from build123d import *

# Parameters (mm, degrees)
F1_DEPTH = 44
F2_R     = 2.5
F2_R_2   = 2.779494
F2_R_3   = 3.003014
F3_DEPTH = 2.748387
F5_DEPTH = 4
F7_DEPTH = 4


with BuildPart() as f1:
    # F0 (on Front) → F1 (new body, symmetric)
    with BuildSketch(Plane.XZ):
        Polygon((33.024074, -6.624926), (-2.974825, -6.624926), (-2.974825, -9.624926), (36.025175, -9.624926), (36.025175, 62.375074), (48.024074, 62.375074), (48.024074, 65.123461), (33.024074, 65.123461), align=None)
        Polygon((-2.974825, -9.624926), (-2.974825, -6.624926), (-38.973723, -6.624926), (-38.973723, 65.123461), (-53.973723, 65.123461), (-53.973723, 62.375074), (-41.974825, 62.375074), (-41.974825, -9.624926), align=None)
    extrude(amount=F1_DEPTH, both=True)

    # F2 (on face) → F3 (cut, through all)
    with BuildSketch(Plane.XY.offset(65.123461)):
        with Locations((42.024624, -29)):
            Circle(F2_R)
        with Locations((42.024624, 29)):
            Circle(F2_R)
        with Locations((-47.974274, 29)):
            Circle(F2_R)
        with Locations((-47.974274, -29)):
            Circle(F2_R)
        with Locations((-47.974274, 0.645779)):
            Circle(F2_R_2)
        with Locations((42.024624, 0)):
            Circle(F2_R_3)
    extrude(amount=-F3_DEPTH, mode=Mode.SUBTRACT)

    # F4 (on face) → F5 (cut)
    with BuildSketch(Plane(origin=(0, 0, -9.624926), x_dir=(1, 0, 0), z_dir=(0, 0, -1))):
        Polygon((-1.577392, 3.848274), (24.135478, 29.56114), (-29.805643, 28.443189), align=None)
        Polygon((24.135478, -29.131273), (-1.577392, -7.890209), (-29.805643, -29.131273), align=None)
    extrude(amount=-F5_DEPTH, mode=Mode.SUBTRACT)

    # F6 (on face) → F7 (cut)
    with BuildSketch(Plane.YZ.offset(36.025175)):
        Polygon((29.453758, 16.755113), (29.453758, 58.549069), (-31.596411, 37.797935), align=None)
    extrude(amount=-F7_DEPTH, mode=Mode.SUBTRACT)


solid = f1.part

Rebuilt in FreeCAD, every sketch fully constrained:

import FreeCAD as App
import Part
import Sketcher

V = App.Vector
Q = App.Units.Quantity


def add_polygon(sketch, points):
    """Adds a closed chain of lines whose ends are joined by coincident constraints."""
    first, n = sketch.GeometryCount, len(points)
    for a, b in zip(points, points[1:] + points[:1]):
        sketch.addGeometry(Part.LineSegment(App.Vector(*a, 0), App.Vector(*b, 0)), False)
    for i in range(n):
        sketch.addConstraint(Sketcher.Constraint("Coincident", first + i, 2, first + (i + 1) % n, 1))

doc = App.newDocument("Part")
body = doc.addObject("PartDesign::Body", "Body")

# Sketch on XZ plane
sketch1 = doc.addObject("Sketcher::SketchObject", "Sketch")
body.addObject(sketch1)
sketch1.AttachmentSupport = (doc.XZ_Plane, [""])
sketch1.MapMode = "FlatFace"
add_polygon(sketch1, [(33.024074, -6.624926), (-38.973723, -6.624926), (-38.973723, 65.123461), (-53.973723, 65.123461), (-53.973723, 62.375074), (-41.974825, 62.375074), (-41.974825, -9.624926), (36.025175, -9.624926), (36.025175, 62.375074), (48.024074, 62.375074), (48.024074, 65.123461), (33.024074, 65.123461)])  # lines 0-11
sketch1.addConstraint([
    Sketcher.Constraint("Horizontal", 0),
    Sketcher.Constraint("Vertical", 1),
    Sketcher.Constraint("Horizontal", 2),
    Sketcher.Constraint("Vertical", 3),
    Sketcher.Constraint("Horizontal", 4),
    Sketcher.Constraint("Vertical", 5),
    Sketcher.Constraint("Horizontal", 6),
    Sketcher.Constraint("Vertical", 7),
    Sketcher.Constraint("Horizontal", 8),
    Sketcher.Constraint("Vertical", 9),
    Sketcher.Constraint("Horizontal", 10),
    Sketcher.Constraint("Vertical", 11),
    Sketcher.Constraint("Horizontal", 4, 2, 7, 2),
    Sketcher.Constraint("Horizontal", 2, 2, 9, 2),
    Sketcher.Constraint("Equal", 4, 8),
    Sketcher.Constraint("Equal", 2, 10),
    Sketcher.Constraint("DistanceX", 2, 2, 2, 1, Q("15 mm")),
    Sketcher.Constraint("DistanceX", 6, 1, 6, 2, Q("78 mm")),
    Sketcher.Constraint("DistanceY", 5, 2, 5, 1, Q("72 mm")),
    Sketcher.Constraint("DistanceY", 0, 2, 3, 2, Q("69 mm")),
    Sketcher.Constraint("DistanceX", 8, 1, 8, 2, Q("11.998899 mm")),
    Sketcher.Constraint("DistanceY", 1, 1, 1, 2, Q("71.748387 mm")),
    Sketcher.Constraint("DistanceY", -1, 1, 1, 2, Q("65.123461 mm")),
    Sketcher.Constraint("DistanceX", 0, 2, -1, 1, Q("38.973723 mm")),
])
pad1 = doc.addObject("PartDesign::Pad", "Pad")
body.addObject(pad1)
pad1.Profile = sketch1
pad1.Length = 88
pad1.Midplane = True

# Sketch on XY plane
sketch2 = doc.addObject("Sketcher::SketchObject", "Sketch001")
body.addObject(sketch2)
sketch2.AttachmentSupport = (doc.XY_Plane, [""])
sketch2.MapMode = "FlatFace"
sketch2.AttachmentOffset = App.Placement(V(0, 0, 65.123461), App.Rotation())
sketch2.addGeometry([
    Part.Circle(V(42.024624, -29, 0), V(0, 0, 1), 2.5),  # 0
    Part.Circle(V(42.024624, 29, 0), V(0, 0, 1), 2.5),  # 1
    Part.Circle(V(-47.974274, 29, 0), V(0, 0, 1), 2.5),  # 2
    Part.Circle(V(-47.974274, -29, 0), V(0, 0, 1), 2.5),  # 3
    Part.Circle(V(-47.974274, 0.645779, 0), V(0, 0, 1), 2.779494),  # 4
    Part.Circle(V(42.024624, 0, 0), V(0, 0, 1), 3.003014),  # 5
], False)
sketch2.addConstraint([
    Sketcher.Constraint("Equal", 0, 1),
    Sketcher.Constraint("Equal", 1, 2),
    Sketcher.Constraint("Equal", 2, 3),
    Sketcher.Constraint("Symmetric", 0, 3, 1, 3, -1),
    Sketcher.Constraint("Symmetric", 2, 3, 3, 3, -1),
    Sketcher.Constraint("PointOnObject", 5, 3, -1),
    Sketcher.Constraint("Horizontal", 1, 3, 2, 3),
    Sketcher.Constraint("Vertical", 3, 3, 4, 3),
    Sketcher.Constraint("Vertical", 1, 3, 5, 3),
    Sketcher.Constraint("Diameter", 0, Q("5 mm")),
    Sketcher.Constraint("DistanceY", 0, 3, -1, 1, Q("29 mm")),
    Sketcher.Constraint("Diameter", 4, Q("5.558988 mm")),
    Sketcher.Constraint("Diameter", 5, Q("6.006028 mm")),
    Sketcher.Constraint("DistanceY", -1, 1, 4, 3, Q("0.645779 mm")),
    Sketcher.Constraint("DistanceX", -1, 1, 0, 3, Q("42.024624 mm")),
    Sketcher.Constraint("DistanceX", 2, 3, -1, 1, Q("47.974274 mm")),
])
pocket1 = doc.addObject("PartDesign::Pocket", "Pocket")
body.addObject(pocket1)
pocket1.Profile = sketch2
pocket1.Type = "ThroughAll"

# Sketch on XY plane
sketch3 = doc.addObject("Sketcher::SketchObject", "Sketch002")
body.addObject(sketch3)
sketch3.AttachmentSupport = (doc.XY_Plane, [""])
sketch3.MapMode = "FlatFace"
sketch3.AttachmentOffset = App.Placement(V(0, 0, -9.624926), App.Rotation())
add_polygon(sketch3, [(-1.577392, -3.848274), (24.135478, -29.56114), (-29.805643, -28.443189)])  # lines 0-2
add_polygon(sketch3, [(24.135478, 29.131273), (-1.577392, 7.890209), (-29.805643, 29.131273)])  # lines 3-5
sketch3.addConstraint([
    Sketcher.Constraint("Horizontal", 5),
    Sketcher.Constraint("Vertical", 2, 2, 3, 2),
    Sketcher.Constraint("Vertical", 1, 2, 4, 2),
    Sketcher.Constraint("Vertical", 0, 2, 5, 2),
    Sketcher.Constraint("Angle", 0, Q("-44.999996 deg")),
    Sketcher.Constraint("DistanceX", 5, 1, 5, 2, Q("53.941121 mm")),
    Sketcher.Constraint("DistanceY", 1, 2, 3, 2, Q("36.333398 mm")),
    Sketcher.Constraint("Distance", 2, Q("37.439872 mm")),
    Sketcher.Constraint("Distance", 3, Q("33.351679 mm")),
    Sketcher.Constraint("DistanceY", 0, 2, -1, 1, Q("29.56114 mm")),
    Sketcher.Constraint("DistanceY", 1, 2, -1, 1, Q("28.443189 mm")),
    Sketcher.Constraint("DistanceX", 2, 2, -1, 1, Q("1.577392 mm")),
])
pocket2 = doc.addObject("PartDesign::Pocket", "Pocket001")
body.addObject(pocket2)
pocket2.Profile = sketch3
pocket2.Length = 4
pocket2.Reversed = True

# Sketch on YZ plane
sketch4 = doc.addObject("Sketcher::SketchObject", "Sketch003")
body.addObject(sketch4)
sketch4.AttachmentSupport = (doc.YZ_Plane, [""])
sketch4.MapMode = "FlatFace"
sketch4.AttachmentOffset = App.Placement(V(0, 0, 36.025175), App.Rotation())
add_polygon(sketch4, [(29.453758, 16.755113), (29.453758, 58.549069), (-31.596411, 37.797935)])  # lines 0-2
sketch4.addConstraint([
    Sketcher.Constraint("Vertical", 0),
    Sketcher.Constraint("DistanceY", 0, 1, 0, 2, Q("41.793956 mm")),
    Sketcher.Constraint("DistanceX", -1, 1, 0, 2, Q("29.453758 mm")),
    Sketcher.Constraint("DistanceY", -1, 1, 0, 2, Q("58.549069 mm")),
    Sketcher.Constraint("DistanceX", 1, 2, -1, 1, Q("31.596411 mm")),
    Sketcher.Constraint("Distance", 1, Q("64.480483 mm")),
])
pocket3 = doc.addObject("PartDesign::Pocket", "Pocket002")
body.addObject(pocket3)
pocket3.Profile = sketch4
pocket3.Length = 4

doc.recompute()
